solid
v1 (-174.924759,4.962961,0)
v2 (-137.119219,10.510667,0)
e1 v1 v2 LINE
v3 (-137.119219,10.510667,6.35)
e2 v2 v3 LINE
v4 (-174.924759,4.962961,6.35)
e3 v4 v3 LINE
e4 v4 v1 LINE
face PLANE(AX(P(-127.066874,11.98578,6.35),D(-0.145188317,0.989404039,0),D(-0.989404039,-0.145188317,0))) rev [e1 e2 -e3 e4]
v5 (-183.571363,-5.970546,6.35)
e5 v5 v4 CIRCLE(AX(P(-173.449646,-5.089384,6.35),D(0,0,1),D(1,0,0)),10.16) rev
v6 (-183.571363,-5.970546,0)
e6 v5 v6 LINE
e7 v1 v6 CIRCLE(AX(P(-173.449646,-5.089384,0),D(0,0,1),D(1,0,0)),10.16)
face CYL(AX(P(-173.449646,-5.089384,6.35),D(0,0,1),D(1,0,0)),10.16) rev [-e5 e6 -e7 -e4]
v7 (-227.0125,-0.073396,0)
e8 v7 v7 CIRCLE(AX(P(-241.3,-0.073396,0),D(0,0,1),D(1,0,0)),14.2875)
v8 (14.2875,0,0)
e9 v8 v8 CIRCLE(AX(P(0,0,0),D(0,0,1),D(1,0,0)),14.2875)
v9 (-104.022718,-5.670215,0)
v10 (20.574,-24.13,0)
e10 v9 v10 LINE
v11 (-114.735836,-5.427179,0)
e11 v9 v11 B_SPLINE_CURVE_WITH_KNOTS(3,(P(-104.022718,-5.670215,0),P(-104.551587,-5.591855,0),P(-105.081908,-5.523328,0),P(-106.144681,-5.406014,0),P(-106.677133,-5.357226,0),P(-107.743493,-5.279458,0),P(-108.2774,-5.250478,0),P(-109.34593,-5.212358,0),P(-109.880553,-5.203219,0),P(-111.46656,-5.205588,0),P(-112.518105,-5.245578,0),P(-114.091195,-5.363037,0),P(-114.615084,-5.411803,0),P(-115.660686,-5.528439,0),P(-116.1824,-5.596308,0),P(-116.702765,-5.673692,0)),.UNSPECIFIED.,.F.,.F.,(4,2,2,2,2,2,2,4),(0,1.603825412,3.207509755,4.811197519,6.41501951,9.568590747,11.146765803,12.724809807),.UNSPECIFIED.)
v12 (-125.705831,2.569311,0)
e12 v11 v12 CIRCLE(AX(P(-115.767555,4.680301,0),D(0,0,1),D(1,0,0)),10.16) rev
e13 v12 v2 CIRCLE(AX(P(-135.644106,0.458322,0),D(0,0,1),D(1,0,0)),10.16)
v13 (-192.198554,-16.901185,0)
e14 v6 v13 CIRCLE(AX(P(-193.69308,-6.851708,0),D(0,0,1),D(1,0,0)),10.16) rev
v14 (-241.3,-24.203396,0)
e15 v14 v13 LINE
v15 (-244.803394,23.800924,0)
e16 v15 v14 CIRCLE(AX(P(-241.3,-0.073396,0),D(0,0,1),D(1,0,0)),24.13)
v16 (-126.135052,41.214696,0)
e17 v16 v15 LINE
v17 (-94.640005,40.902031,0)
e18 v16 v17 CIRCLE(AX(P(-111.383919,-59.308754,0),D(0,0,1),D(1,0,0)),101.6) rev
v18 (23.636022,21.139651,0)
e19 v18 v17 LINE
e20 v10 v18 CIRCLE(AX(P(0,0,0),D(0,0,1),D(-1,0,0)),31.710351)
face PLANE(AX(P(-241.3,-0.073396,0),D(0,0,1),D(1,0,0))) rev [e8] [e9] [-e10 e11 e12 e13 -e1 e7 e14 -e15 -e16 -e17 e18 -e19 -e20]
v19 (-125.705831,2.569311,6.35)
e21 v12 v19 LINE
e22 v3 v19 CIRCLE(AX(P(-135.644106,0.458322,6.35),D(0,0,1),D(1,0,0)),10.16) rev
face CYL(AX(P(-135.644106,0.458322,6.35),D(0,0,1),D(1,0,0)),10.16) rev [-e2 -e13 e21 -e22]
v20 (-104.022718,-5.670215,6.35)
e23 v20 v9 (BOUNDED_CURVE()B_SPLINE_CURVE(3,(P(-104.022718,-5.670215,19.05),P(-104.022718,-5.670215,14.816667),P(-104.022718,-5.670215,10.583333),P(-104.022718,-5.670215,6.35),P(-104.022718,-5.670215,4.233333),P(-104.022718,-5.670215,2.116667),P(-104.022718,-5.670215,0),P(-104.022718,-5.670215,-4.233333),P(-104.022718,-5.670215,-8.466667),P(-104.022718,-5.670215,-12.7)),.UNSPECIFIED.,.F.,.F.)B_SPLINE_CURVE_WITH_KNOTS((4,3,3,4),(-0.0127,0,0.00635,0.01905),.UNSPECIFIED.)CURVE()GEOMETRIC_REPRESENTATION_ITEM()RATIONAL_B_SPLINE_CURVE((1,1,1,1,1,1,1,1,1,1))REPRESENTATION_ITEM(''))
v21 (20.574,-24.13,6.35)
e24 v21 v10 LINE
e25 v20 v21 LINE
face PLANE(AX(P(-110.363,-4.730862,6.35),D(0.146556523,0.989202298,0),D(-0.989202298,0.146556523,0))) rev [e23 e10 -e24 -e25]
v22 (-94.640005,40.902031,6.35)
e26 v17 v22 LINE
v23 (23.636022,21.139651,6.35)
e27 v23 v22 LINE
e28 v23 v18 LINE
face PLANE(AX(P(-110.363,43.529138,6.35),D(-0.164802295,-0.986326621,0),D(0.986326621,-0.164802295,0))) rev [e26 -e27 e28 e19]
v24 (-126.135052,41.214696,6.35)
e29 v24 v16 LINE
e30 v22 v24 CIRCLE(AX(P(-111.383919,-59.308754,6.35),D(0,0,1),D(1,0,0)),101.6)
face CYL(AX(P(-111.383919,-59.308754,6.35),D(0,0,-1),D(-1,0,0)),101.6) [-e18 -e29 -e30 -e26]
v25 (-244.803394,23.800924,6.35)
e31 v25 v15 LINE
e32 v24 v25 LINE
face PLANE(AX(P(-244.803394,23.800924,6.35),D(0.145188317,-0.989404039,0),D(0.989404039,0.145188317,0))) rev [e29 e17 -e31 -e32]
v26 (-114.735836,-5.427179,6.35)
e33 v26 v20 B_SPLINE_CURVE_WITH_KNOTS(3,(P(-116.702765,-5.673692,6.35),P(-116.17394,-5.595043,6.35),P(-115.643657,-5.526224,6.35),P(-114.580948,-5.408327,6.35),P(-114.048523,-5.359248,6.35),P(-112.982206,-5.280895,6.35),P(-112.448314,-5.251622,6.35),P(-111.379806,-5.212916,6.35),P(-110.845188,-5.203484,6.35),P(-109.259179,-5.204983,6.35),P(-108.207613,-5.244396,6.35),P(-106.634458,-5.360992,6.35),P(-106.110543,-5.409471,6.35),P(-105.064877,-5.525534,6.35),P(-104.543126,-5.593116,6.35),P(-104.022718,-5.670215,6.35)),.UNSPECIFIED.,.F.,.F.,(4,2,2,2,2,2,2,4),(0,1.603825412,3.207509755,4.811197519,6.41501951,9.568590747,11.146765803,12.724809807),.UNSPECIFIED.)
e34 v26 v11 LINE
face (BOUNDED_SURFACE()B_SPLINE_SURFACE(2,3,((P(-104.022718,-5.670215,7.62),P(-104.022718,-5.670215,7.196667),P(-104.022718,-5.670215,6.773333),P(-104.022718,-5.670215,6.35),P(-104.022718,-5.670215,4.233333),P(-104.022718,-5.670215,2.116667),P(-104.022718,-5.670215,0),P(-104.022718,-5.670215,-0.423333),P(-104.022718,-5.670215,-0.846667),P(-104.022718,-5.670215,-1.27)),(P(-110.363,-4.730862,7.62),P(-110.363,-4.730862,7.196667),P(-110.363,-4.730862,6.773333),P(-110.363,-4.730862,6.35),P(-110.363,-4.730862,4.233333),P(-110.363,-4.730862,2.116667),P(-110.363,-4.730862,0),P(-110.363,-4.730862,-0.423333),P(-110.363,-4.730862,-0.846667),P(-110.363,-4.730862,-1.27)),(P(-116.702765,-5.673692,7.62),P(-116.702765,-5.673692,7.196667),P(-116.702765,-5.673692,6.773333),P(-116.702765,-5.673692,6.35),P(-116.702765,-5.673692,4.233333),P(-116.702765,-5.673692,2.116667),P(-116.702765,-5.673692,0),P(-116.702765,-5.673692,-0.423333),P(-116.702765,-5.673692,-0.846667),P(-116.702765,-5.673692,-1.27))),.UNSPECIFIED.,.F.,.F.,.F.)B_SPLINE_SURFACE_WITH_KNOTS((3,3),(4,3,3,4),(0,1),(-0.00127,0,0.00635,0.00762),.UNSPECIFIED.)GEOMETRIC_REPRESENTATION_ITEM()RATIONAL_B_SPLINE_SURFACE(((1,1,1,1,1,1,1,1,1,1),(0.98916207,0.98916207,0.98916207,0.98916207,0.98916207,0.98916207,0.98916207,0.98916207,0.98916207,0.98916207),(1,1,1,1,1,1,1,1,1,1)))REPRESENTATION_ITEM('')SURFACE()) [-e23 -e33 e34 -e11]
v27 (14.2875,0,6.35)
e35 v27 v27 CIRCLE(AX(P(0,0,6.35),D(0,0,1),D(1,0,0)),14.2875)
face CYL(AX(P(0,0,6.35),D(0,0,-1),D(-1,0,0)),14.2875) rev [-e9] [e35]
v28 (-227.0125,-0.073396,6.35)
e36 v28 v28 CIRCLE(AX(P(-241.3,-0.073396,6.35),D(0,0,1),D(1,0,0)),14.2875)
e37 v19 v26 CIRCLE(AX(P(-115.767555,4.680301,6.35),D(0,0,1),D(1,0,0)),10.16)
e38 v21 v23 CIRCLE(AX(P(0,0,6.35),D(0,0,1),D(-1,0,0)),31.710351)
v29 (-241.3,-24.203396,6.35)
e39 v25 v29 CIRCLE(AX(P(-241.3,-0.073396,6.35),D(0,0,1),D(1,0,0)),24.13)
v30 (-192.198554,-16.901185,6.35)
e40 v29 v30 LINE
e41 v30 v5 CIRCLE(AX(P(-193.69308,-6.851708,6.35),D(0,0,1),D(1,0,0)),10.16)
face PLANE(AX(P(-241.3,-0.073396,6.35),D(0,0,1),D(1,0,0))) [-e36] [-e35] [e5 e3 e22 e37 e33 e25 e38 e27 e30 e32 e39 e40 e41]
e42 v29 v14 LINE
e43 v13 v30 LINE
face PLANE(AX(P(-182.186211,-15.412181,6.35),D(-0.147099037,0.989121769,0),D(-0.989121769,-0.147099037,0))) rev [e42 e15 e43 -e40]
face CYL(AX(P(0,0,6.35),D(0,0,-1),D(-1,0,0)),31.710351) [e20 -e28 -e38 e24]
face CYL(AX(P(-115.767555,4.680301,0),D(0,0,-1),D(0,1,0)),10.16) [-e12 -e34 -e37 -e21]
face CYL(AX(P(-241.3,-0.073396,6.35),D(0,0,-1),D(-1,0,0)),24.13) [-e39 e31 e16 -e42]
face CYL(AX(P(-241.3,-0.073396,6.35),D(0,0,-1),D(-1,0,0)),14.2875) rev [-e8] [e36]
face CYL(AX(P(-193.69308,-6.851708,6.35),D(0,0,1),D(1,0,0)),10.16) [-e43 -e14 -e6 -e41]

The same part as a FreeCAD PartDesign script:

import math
import FreeCAD as App
import Part
import Sketcher
from FreeCAD import Vector
Q = App.Units.Quantity


def edges_at(feature, points):
    """Names of the edges that pass closest to the given points."""
    edges = feature.Shape.Edges
    near = lambda p: min(range(len(edges)), key=lambda i: edges[i].distToShape(Part.Vertex(*p))[0])
    return sorted({f"Edge{near(p) + 1}" for p in points})

doc = App.newDocument("Part")
params = doc.addObject("Spreadsheet::Sheet", "Params")
for row, (alias, value) in enumerate([
    ("sketch1_radius", "0.95 in"),
    ("sketch1_diameter", "1.125 in"),
    ("pad1_length", "0.25 in"),
    ("fillet_radius", "4 in"),
    ("fillet2_radius", "0.4 in"),
    ("fillet3_radius", "0.4 in"),
    ("fillet4_radius", "0.4 in"),
    ("fillet5_radius", "1.7 in"),
    ("fillet6_radius", "0.4 in"),
], start=1):
    params.set(f"A{row}", alias)
    params.set(f"B{row}", "=" + value)
    params.setAlias(f"B{row}", alias)

body = doc.addObject("PartDesign::Body", "Body")

sketch1 = body.newObject("Sketcher::SketchObject", "Sketch")
sketch1.AttachmentSupport = (doc.getObject("XY_Plane"), [""])
sketch1.MapMode = "FlatFace"
sketch1.addGeometry([
    Part.LineSegment(Vector(-110, 44, 0), Vector(-245, 24, 0)),
    Part.ArcOfCircle(Part.Circle(Vector(-241, 0, 0), Vector(0, 0, 1), 24), math.radians(98), math.radians(270)),
    Part.LineSegment(Vector(-241, -24, 0), Vector(-182, -15, 0)),
    Part.LineSegment(Vector(-182, -15, 0), Vector(-185, 3, 0)),
    Part.LineSegment(Vector(-185, 3, 0), Vector(-127, 12, 0)),
    Part.LineSegment(Vector(-127, 12, 0), Vector(-124, -7, 0)),
    Part.LineSegment(Vector(-124, -7, 0), Vector(-110, -5, 0)),
    Part.LineSegment(Vector(-110, -5, 0), Vector(21, -24, 0)),
    Part.ArcOfCircle(Part.Circle(Vector(0, 0, 0), Vector(0, 0, 1), 32), math.radians(-50), math.radians(42)),
    Part.LineSegment(Vector(24, 21, 0), Vector(-110, 44, 0)),
    Part.Circle(Vector(-241, 0, 0), Vector(0, 0, 1), 14),
    Part.Circle(Vector(0, 0, 0), Vector(0, 0, 1), 14),
], False)
sketch1.addConstraint([
    Sketcher.Constraint("Tangent", 0, 2, 1, 1),
    Sketcher.Constraint("Coincident", 1, 2, 2, 1),
    Sketcher.Constraint("Coincident", 2, 2, 3, 1),
    Sketcher.Constraint("Coincident", 3, 2, 4, 1),
    Sketcher.Constraint("Coincident", 4, 2, 5, 1),
    Sketcher.Constraint("Coincident", 5, 2, 6, 1),
    Sketcher.Constraint("Coincident", 6, 2, 7, 1),
    Sketcher.Constraint("Coincident", 7, 2, 8, 1),
    Sketcher.Constraint("Coincident", 8, 2, 9, 1),
    Sketcher.Constraint("Coincident", 9, 2, 0, 1),
    Sketcher.Constraint("Coincident", 8, 3, -1, 1),
    Sketcher.Constraint("Coincident", 11, 3, -1, 1),
    Sketcher.Constraint("Coincident", 10, 3, 1, 3),
    Sketcher.Constraint("Equal", 10, 11),
    Sketcher.Constraint("Perpendicular", 2, 3),
    Sketcher.Constraint("Parallel", 0, 4),
    Sketcher.Constraint("Perpendicular", 4, 5),
    Sketcher.Constraint("Perpendicular", 3, 6),
    Sketcher.Constraint("Vertical", 10, 3, 1, 2),
    Sketcher.Constraint("Vertical", 6, 2, 9, 2),
    Sketcher.Constraint("Radius", 1, Q("0.95 in")),
    Sketcher.Constraint("Diameter", 10, Q("1.125 in")),
    Sketcher.Constraint("DistanceX", 1, 3, -1, 1, Q("9.5 in")),
    Sketcher.Constraint("DistanceY", 6, 2, 9, 2, Q("1.9 in")),
    Sketcher.Constraint("DistanceX", -1, 1, 7, 2, Q("0.81 in")),
    Sketcher.Constraint("DistanceY", 7, 2, -1, 1, Q("0.95 in")),
    Sketcher.Constraint("DistanceX", 6, 2, -1, 1, Q("4.345 in")),
    Sketcher.Constraint("Distance", 4, 58.550059),
    Sketcher.Constraint("Distance", 7, 132.366251),
    Sketcher.Constraint("Distance", 9, 135.856641),
    Sketcher.Constraint("DistanceX", 2, 2, -1, 1, 182.186211),
    Sketcher.Constraint("DistanceY", 2, 2, -1, 1, 15.412181),
    Sketcher.Constraint("DistanceX", 3, 2, -1, 1, 184.996539),
    Sketcher.Constraint("DistanceY", -1, 1, 4, 2, 11.98578),
])
sketch1.setExpression("Constraints[20]", "Params.sketch1_radius")
sketch1.setExpression("Constraints[21]", "Params.sketch1_diameter")
pad1 = body.newObject("PartDesign::Pad", "Pad")
pad1.Profile = sketch1
pad1.setExpression("Length", "Params.pad1_length")
doc.recompute()

fillet = body.newObject("PartDesign::Fillet", "Fillet")
fillet.Base = (pad1, edges_at(pad1, [(-110.363, 43.529, 3.175)]))
fillet.setExpression("Radius", "Params.fillet_radius")
doc.recompute()

fillet2 = body.newObject("PartDesign::Fillet", "Fillet001")
fillet2.Base = (fillet, edges_at(fillet, [(-127.067, 11.986, 3.175)]))
fillet2.setExpression("Radius", "Params.fillet2_radius")
doc.recompute()

fillet3 = body.newObject("PartDesign::Fillet", "Fillet002")
fillet3.Base = (fillet2, edges_at(fillet2, [(-184.997, 3.485, 3.175)]))
fillet3.setExpression("Radius", "Params.fillet3_radius")
doc.recompute()

fillet4 = body.newObject("PartDesign::Fillet", "Fillet003")
fillet4.Base = (fillet3, edges_at(fillet3, [(-182.186, -15.412, 3.175)]))
fillet4.setExpression("Radius", "Params.fillet4_radius")
doc.recompute()

fillet5 = body.newObject("PartDesign::Fillet", "Fillet004")
fillet5.Base = (fillet4, edges_at(fillet4, [(-110.363, -4.731, 3.175)]))
fillet5.setExpression("Radius", "Params.fillet5_radius")
doc.recompute()

fillet6 = body.newObject("PartDesign::Fillet", "Fillet005")
fillet6.Base = (fillet5, edges_at(fillet5, [(-124.309, -6.805, 3.175)]))
fillet6.setExpression("Radius", "Params.fillet6_radius")

doc.recompute()
